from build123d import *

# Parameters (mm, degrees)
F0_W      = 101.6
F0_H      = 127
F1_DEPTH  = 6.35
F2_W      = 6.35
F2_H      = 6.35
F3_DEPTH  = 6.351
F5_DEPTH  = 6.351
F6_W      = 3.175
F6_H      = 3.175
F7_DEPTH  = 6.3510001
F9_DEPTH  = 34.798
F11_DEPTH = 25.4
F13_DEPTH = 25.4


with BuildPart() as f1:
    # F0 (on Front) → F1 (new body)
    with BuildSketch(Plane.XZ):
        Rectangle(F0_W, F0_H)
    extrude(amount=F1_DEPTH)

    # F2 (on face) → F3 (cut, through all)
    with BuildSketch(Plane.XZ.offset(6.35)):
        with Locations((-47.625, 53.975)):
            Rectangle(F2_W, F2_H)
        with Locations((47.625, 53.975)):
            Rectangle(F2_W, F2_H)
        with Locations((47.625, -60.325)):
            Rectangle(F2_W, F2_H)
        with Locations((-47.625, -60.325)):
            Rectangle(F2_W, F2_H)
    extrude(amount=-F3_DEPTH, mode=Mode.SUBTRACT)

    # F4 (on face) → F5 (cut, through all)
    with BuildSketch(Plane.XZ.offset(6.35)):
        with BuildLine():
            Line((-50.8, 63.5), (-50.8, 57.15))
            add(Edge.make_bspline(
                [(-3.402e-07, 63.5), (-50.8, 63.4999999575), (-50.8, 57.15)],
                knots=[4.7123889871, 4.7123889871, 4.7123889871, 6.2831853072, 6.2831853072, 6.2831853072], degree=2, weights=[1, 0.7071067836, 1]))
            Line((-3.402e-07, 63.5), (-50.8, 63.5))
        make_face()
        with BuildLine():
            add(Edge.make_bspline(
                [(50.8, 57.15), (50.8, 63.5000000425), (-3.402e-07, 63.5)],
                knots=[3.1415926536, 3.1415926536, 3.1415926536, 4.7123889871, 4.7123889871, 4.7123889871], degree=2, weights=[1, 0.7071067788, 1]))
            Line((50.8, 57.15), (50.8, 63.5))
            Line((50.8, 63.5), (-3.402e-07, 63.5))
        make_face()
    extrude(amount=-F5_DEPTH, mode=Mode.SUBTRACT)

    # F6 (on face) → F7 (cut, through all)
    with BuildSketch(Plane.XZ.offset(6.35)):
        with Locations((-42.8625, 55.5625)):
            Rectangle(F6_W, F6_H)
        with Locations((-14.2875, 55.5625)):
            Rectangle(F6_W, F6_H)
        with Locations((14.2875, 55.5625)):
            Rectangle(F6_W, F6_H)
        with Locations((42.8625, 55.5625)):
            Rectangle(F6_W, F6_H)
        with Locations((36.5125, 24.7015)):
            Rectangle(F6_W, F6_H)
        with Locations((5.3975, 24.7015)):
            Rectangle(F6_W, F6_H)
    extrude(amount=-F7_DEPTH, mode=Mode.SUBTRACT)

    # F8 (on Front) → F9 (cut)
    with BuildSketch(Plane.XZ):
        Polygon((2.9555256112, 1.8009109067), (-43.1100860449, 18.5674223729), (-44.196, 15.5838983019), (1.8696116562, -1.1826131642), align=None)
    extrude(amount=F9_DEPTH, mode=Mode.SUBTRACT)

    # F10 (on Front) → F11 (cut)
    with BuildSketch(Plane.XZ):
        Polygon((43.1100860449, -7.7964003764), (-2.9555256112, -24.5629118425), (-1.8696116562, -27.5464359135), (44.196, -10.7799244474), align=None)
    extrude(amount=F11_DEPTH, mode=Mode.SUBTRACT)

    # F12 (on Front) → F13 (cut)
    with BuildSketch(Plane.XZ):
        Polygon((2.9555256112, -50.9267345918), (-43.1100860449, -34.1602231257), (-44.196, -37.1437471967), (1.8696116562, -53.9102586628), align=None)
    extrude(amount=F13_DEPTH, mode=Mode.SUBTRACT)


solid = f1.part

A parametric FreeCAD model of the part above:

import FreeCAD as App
import Part
import Sketcher
from FreeCAD import Vector
Q = App.Units.Quantity


def add_polygon(sketch, points):
    """Adds a closed chain of lines whose ends are joined by coincident constraints."""
    first, n = sketch.GeometryCount, len(points)
    for a, b in zip(points, points[1:] + points[:1]):
        sketch.addGeometry(Part.LineSegment(App.Vector(*a, 0), App.Vector(*b, 0)), False)
    for i in range(n):
        sketch.addConstraint(Sketcher.Constraint("Coincident", first + i, 2, first + (i + 1) % n, 1))

doc = App.newDocument("Part")
body = doc.addObject("PartDesign::Body", "Body")

# Sketch on XZ plane
sketch1 = doc.addObject("Sketcher::SketchObject", "Sketch")
body.addObject(sketch1)
sketch1.AttachmentSupport = (doc.XZ_Plane, [""])
sketch1.MapMode = "FlatFace"
add_polygon(sketch1, [(-50.8, 63.5), (-50.8, -63.5), (50.8, -63.5), (50.8, 63.5)])  # lines 0-3
sketch1.addConstraint([
    Sketcher.Constraint("Vertical", 0),
    Sketcher.Constraint("Horizontal", 1),
    Sketcher.Constraint("Vertical", 2),
    Sketcher.Constraint("Horizontal", 3),
    Sketcher.Constraint("Symmetric", 0, 2, 2, 2, -1, 1),
    Sketcher.Constraint("DistanceX", 1, 1, 1, 2, Q("4 in")),
    Sketcher.Constraint("DistanceY", 0, 2, 0, 1, Q("5 in")),
])
pad1 = doc.addObject("PartDesign::Pad", "Pad")
body.addObject(pad1)
pad1.Profile = sketch1
pad1.Length = Q("0.25 in")

# Sketch on XZ plane
sketch2 = doc.addObject("Sketcher::SketchObject", "Sketch001")
body.addObject(sketch2)
sketch2.AttachmentSupport = (doc.XZ_Plane, [""])
sketch2.MapMode = "FlatFace"
sketch2.AttachmentOffset = App.Placement(Vector(0, 0, 0.25 * 25.4), App.Rotation())
add_polygon(sketch2, [(-50.8, 57.15), (-50.8, 50.8), (-44.45, 50.8), (-44.45, 57.15)])  # lines 0-3
add_polygon(sketch2, [(44.45, 57.15), (44.45, 50.8), (50.8, 50.8), (50.8, 57.15)])  # lines 4-7
add_polygon(sketch2, [(44.45, -57.15), (44.45, -63.5), (50.8, -63.5), (50.8, -57.15)])  # lines 8-11
add_polygon(sketch2, [(-50.8, -57.15), (-50.8, -63.5), (-44.45, -63.5), (-44.45, -57.15)])  # lines 12-15
sketch2.addConstraint([
    Sketcher.Constraint("Vertical", 0),
    Sketcher.Constraint("Horizontal", 1),
    Sketcher.Constraint("Vertical", 2),
    Sketcher.Constraint("Horizontal", 3),
    Sketcher.Constraint("Vertical", 4),
    Sketcher.Constraint("Horizontal", 5),
    Sketcher.Constraint("Vertical", 6),
    Sketcher.Constraint("Horizontal", 7),
    Sketcher.Constraint("Vertical", 8),
    Sketcher.Constraint("Horizontal", 9),
    Sketcher.Constraint("Vertical", 10),
    Sketcher.Constraint("Horizontal", 11),
    Sketcher.Constraint("Vertical", 12),
    Sketcher.Constraint("Horizontal", 13),
    Sketcher.Constraint("Vertical", 14),
    Sketcher.Constraint("Horizontal", 15),
    Sketcher.Constraint("Symmetric", 3, 2, 10, 2, -1, 1),
    Sketcher.Constraint("Symmetric", 7, 2, 14, 2, -1, 1),
    Sketcher.Constraint("Symmetric", 1, 2, 4, 2, -2),
    Sketcher.Constraint("Symmetric", 3, 2, 6, 2, -2),
    Sketcher.Constraint("Symmetric", 9, 2, 12, 2, -2),
    Sketcher.Constraint("Vertical", 7, 2, 8, 2),
    Sketcher.Constraint("Equal", 15, 0),
    Sketcher.Constraint("Equal", 6, 8),
    Sketcher.Constraint("DistanceX", 0, 2, -1, 1, Q("2 in")),
    Sketcher.Constraint("DistanceY", -1, 1, 0, 2, Q("2 in")),
    Sketcher.Constraint("DistanceX", 1, 1, 1, 2, Q("0.25 in")),
])
pocket1 = doc.addObject("PartDesign::Pocket", "Pocket")
body.addObject(pocket1)
pocket1.Profile = sketch2
pocket1.Type = "ThroughAll"

# Sketch on XZ plane
sketch3 = doc.addObject("Sketcher::SketchObject", "Sketch002")
body.addObject(sketch3)
sketch3.AttachmentSupport = (doc.XZ_Plane, [""])
sketch3.MapMode = "FlatFace"
sketch3.AttachmentOffset = App.Placement(Vector(0, 0, 0.25 * 25.4), App.Rotation())
sketch3.addGeometry([
    Part.LineSegment(Vector(-50.8, 63.5, 0), Vector(-50.8, 57.15, 0)),  # 0
    Part.BSplineCurve([Vector(0, 63.5, 0), Vector(-50.8, 63.5, 0), Vector(-50.8, 57.15, 0)], [3, 3], [4.712388987, 6.283185307], False, 2, [1, 0.707106784, 1], False),  # 1
    Part.LineSegment(Vector(0, 63.5, 0), Vector(-50.8, 63.5, 0)),  # 2
    Part.BSplineCurve([Vector(50.8, 57.15, 0), Vector(50.8, 63.5, 0), Vector(0, 63.5, 0)], [3, 3], [3.141592654, 4.712388987], False, 2, [1, 0.707106779, 1], False),  # 3
    Part.LineSegment(Vector(50.8, 57.15, 0), Vector(50.8, 63.5, 0)),  # 4
    Part.LineSegment(Vector(50.8, 63.5, 0), Vector(0, 63.5, 0)),  # 5
], False)
sketch3.addConstraint([
    Sketcher.Constraint("Block", 1),
    Sketcher.Constraint("Block", 3),
    Sketcher.Constraint("Coincident", 0, 2, 1, 2),
    Sketcher.Constraint("Coincident", 1, 1, 2, 1),
    Sketcher.Constraint("Coincident", 2, 2, 0, 1),
    Sketcher.Constraint("Coincident", 3, 1, 4, 1),
    Sketcher.Constraint("Coincident", 4, 2, 5, 1),
    Sketcher.Constraint("Coincident", 5, 2, 3, 2),
    Sketcher.Constraint("Vertical", 0),
    Sketcher.Constraint("Horizontal", 2),
    Sketcher.Constraint("Vertical", 4),
    Sketcher.Constraint("Horizontal", 5),
])
pocket2 = doc.addObject("PartDesign::Pocket", "Pocket001")
body.addObject(pocket2)
pocket2.Profile = sketch3
pocket2.Type = "ThroughAll"

# Sketch on XZ plane
sketch4 = doc.addObject("Sketcher::SketchObject", "Sketch003")
body.addObject(sketch4)
sketch4.AttachmentSupport = (doc.XZ_Plane, [""])
sketch4.MapMode = "FlatFace"
sketch4.AttachmentOffset = App.Placement(Vector(0, 0, 0.25 * 25.4), App.Rotation())
add_polygon(sketch4, [(-44.45, 57.15), (-44.45, 53.975), (-41.275, 53.975), (-41.275, 57.15)])  # lines 0-3
add_polygon(sketch4, [(-15.875, 57.15), (-15.875, 53.975), (-12.7, 53.975), (-12.7, 57.15)])  # lines 4-7
add_polygon(sketch4, [(12.7, 57.15), (12.7, 53.975), (15.875, 53.975), (15.875, 57.15)])  # lines 8-11
add_polygon(sketch4, [(41.275, 57.15), (41.275, 53.975), (44.45, 53.975), (44.45, 57.15)])  # lines 12-15
add_polygon(sketch4, [(34.925, 26.289), (34.925, 23.114), (38.1, 23.114), (38.1, 26.289)])  # lines 16-19
add_polygon(sketch4, [(3.81, 26.289), (3.81, 23.114), (6.985, 23.114), (6.985, 26.289)])  # lines 20-23
sketch4.addConstraint([
    Sketcher.Constraint("Vertical", 0),
    Sketcher.Constraint("Horizontal", 1),
    Sketcher.Constraint("Vertical", 2),
    Sketcher.Constraint("Horizontal", 3),
    Sketcher.Constraint("Vertical", 4),
    Sketcher.Constraint("Horizontal", 5),
    Sketcher.Constraint("Vertical", 6),
    Sketcher.Constraint("Horizontal", 7),
    Sketcher.Constraint("Vertical", 8),
    Sketcher.Constraint("Horizontal", 9),
    Sketcher.Constraint("Vertical", 10),
    Sketcher.Constraint("Horizontal", 11),
    Sketcher.Constraint("Vertical", 12),
    Sketcher.Constraint("Horizontal", 13),
    Sketcher.Constraint("Vertical", 14),
    Sketcher.Constraint("Horizontal", 15),
    Sketcher.Constraint("Vertical", 16),
    Sketcher.Constraint("Horizontal", 17),
    Sketcher.Constraint("Vertical", 18),
    Sketcher.Constraint("Horizontal", 19),
    Sketcher.Constraint("Vertical", 20),
    Sketcher.Constraint("Horizontal", 21),
    Sketcher.Constraint("Vertical", 22),
    Sketcher.Constraint("Horizontal", 23),
    Sketcher.Constraint("Symmetric", 5, 2, 8, 2, -2),
    Sketcher.Constraint("Symmetric", 7, 2, 10, 2, -2),
    Sketcher.Constraint("Symmetric", 1, 2, 12, 2, -2),
    Sketcher.Constraint("Symmetric", 3, 2, 14, 2, -2),
    Sketcher.Constraint("Horizontal", 1, 2, 4, 2),
    Sketcher.Constraint("Horizontal", 3, 2, 6, 2),
    Sketcher.Constraint("Horizontal", 17, 2, 20, 2),
    Sketcher.Constraint("Horizontal", 19, 2, 22, 2),
    Sketcher.Constraint("Equal", 3, 5),
    Sketcher.Constraint("Equal", 15, 17),
    Sketcher.Constraint("Equal", 19, 21),
    Sketcher.Constraint("Equal", 23, 0),
    Sketcher.Constraint("Equal", 14, 16),
    Sketcher.Constraint("DistanceX", 1, 2, 4, 2, Q("1 in")),
    Sketcher.Constraint("DistanceX", 5, 2, 8, 2, Q("1 in")),
    Sketcher.Constraint("DistanceX", -1, 1, 17, 2, Q("1.5 in")),
    Sketcher.Constraint("DistanceX", 21, 2, 16, 2, Q("1.1 in")),
    Sketcher.Constraint("DistanceX", 1, 1, 1, 2, Q("0.125 in")),
    Sketcher.Constraint("DistanceY", -1, 1, 2, 2, Q("2.25 in")),
    Sketcher.Constraint("DistanceY", -1, 1, 16, 2, Q("0.91 in")),
])
pocket3 = doc.addObject("PartDesign::Pocket", "Pocket002")
body.addObject(pocket3)
pocket3.Profile = sketch4
pocket3.Type = "ThroughAll"

# Sketch on XZ plane
sketch5 = doc.addObject("Sketcher::SketchObject", "Sketch004")
body.addObject(sketch5)
sketch5.AttachmentSupport = (doc.XZ_Plane, [""])
sketch5.MapMode = "FlatFace"
add_polygon(sketch5, [(2.955526, 1.800911), (-43.110086, 18.567422), (-44.196, 15.583898), (1.869612, -1.182613)])  # lines 0-3
sketch5.addConstraint([
    Sketcher.Constraint("Perpendicular", 0, 1),
    Sketcher.Constraint("Perpendicular", 1, 2),
    Sketcher.Constraint("Perpendicular", 2, 3),
    Sketcher.Constraint("Angle", 0, Q("160 deg")),
    Sketcher.Constraint("Distance", 0, Q("1.93 in")),
    Sketcher.Constraint("DistanceX", 1, 2, -1, 1, Q("1.74 in")),
    Sketcher.Constraint("Distance", 1, Q("0.125 in")),
    Sketcher.Constraint("DistanceY", -1, 1, 1, 2, Q("15.583898 mm")),
])
pocket4 = doc.addObject("PartDesign::Pocket", "Pocket003")
body.addObject(pocket4)
pocket4.Profile = sketch5
pocket4.Length = Q("1.37 in")
pocket4.Reversed = True

# Sketch on XZ plane
sketch6 = doc.addObject("Sketcher::SketchObject", "Sketch005")
body.addObject(sketch6)
sketch6.AttachmentSupport = (doc.XZ_Plane, [""])
sketch6.MapMode = "FlatFace"
add_polygon(sketch6, [(43.110086, -7.7964), (-2.955526, -24.562912), (-1.869612, -27.546436), (44.196, -10.779924)])  # lines 0-3
sketch6.addConstraint([
    Sketcher.Constraint("Perpendicular", 0, 1),
    Sketcher.Constraint("Perpendicular", 1, 2),
    Sketcher.Constraint("Perpendicular", 2, 3),
    Sketcher.Constraint("Angle", 0, Q("-160 deg")),
    Sketcher.Constraint("Distance", 0, Q("1.93 in")),
    Sketcher.Constraint("DistanceX", -1, 1, 2, 2, Q("1.74 in")),
    Sketcher.Constraint("Distance", 1, Q("0.125 in")),
    Sketcher.Constraint("DistanceY", 3, 2, -1, 1, Q("7.7964 mm")),
])
pocket5 = doc.addObject("PartDesign::Pocket", "Pocket004")
body.addObject(pocket5)
pocket5.Profile = sketch6
pocket5.Length = Q("1 in")
pocket5.Reversed = True

# Sketch on XZ plane
sketch7 = doc.addObject("Sketcher::SketchObject", "Sketch006")
body.addObject(sketch7)
sketch7.AttachmentSupport = (doc.XZ_Plane, [""])
sketch7.MapMode = "FlatFace"
add_polygon(sketch7, [(2.955526, -50.926735), (-43.110086, -34.160223), (-44.196, -37.143747), (1.869612, -53.910259)])  # lines 0-3
sketch7.addConstraint([
    Sketcher.Constraint("Perpendicular", 0, 1),
    Sketcher.Constraint("Perpendicular", 1, 2),
    Sketcher.Constraint("Perpendicular", 2, 3),
    Sketcher.Constraint("Angle", 0, Q("160 deg")),
    Sketcher.Constraint("Distance", 0, Q("1.93 in")),
    Sketcher.Constraint("DistanceX", 1, 2, -1, 1, Q("1.74 in")),
    Sketcher.Constraint("Distance", 1, Q("0.125 in")),
    Sketcher.Constraint("DistanceY", 2, 2, -1, 1, Q("53.910259 mm")),
])
pocket6 = doc.addObject("PartDesign::Pocket", "Pocket005")
body.addObject(pocket6)
pocket6.Profile = sketch7
pocket6.Length = Q("1 in")
pocket6.Reversed = True

doc.recompute()
